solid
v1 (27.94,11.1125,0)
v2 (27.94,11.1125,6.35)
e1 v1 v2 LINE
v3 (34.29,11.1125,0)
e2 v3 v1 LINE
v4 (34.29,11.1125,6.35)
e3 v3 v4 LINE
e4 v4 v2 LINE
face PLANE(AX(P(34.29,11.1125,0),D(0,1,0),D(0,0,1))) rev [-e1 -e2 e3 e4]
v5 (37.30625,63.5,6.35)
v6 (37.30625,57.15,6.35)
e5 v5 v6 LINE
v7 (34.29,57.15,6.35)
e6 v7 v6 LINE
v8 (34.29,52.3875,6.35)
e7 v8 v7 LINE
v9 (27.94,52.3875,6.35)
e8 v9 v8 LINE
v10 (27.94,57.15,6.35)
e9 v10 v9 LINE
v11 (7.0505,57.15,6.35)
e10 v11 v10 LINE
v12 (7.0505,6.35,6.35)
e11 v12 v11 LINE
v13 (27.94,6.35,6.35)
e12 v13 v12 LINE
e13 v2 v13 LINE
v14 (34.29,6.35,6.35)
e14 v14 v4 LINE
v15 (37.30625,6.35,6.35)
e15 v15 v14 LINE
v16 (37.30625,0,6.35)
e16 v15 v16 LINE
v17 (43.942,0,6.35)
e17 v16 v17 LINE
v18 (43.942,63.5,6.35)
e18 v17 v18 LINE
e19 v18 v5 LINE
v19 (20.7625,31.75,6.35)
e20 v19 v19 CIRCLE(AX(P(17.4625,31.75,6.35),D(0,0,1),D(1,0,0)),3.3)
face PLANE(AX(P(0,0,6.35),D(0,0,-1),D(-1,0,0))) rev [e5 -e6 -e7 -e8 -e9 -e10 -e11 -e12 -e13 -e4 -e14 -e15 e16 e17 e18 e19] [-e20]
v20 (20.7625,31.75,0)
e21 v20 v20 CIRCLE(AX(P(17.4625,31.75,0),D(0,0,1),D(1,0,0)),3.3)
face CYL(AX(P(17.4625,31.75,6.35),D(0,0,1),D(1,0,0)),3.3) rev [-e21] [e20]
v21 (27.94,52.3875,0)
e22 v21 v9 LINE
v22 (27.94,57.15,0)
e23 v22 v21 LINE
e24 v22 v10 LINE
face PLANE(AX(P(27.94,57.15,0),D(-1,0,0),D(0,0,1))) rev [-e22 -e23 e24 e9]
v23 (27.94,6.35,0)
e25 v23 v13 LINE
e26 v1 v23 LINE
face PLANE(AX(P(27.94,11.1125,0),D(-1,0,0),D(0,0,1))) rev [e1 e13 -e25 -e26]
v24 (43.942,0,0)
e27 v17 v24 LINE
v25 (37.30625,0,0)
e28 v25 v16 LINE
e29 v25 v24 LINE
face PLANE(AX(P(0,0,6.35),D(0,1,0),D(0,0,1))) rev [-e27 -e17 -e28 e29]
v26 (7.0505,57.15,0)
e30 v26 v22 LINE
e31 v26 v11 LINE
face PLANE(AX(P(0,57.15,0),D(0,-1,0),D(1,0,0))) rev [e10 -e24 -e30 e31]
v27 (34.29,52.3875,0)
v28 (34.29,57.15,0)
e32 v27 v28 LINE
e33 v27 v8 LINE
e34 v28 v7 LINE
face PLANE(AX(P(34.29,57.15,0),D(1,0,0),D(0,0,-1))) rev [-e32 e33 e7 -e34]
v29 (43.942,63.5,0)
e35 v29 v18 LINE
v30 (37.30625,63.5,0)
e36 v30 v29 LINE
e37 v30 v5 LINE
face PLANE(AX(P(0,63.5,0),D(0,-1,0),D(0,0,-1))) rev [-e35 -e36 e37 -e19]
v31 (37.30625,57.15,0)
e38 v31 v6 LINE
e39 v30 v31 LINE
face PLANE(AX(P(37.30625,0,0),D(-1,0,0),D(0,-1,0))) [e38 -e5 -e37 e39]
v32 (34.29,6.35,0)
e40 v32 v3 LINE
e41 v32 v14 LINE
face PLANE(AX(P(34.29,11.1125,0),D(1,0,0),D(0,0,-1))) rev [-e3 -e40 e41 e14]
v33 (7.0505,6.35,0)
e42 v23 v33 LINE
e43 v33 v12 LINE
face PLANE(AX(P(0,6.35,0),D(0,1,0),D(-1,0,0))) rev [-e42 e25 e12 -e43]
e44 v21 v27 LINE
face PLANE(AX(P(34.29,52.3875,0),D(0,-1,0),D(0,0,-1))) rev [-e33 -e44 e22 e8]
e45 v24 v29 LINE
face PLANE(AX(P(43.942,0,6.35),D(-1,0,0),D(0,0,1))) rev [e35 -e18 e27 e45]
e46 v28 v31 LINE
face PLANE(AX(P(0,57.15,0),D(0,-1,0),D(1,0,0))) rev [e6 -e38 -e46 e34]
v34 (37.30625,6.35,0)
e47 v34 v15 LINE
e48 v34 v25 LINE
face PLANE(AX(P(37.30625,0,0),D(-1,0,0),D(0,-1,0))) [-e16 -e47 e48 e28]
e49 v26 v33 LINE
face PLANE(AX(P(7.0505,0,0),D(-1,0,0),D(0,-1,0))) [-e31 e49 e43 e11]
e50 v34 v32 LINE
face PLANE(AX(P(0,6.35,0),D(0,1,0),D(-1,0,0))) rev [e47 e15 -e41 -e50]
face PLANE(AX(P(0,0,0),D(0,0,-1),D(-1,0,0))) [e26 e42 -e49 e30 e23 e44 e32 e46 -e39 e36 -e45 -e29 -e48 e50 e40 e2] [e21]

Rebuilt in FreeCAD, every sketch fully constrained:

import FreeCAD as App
import Part
import Sketcher

V = App.Vector
Q = App.Units.Quantity

doc = App.newDocument("Part")
body = doc.addObject("PartDesign::Body", "Body")

sketch1 = body.newObject("Sketcher::SketchObject", "Sketch")
sketch1.AttachmentSupport = (doc.getObject("XY_Plane"), [""])
sketch1.MapMode = "FlatFace"
sketch1.addGeometry([
    Part.LineSegment(V(0, 127, 0), V(0, 0, 0)),
    Part.LineSegment(V(0, 0, 0), V(44, 0, 0)),
    Part.LineSegment(V(44, 0, 0), V(44, 127, 0)),
    Part.LineSegment(V(44, 127, 0), V(0, 127, 0)),
], False)
sketch1.addConstraint([
    Sketcher.Constraint("Coincident", 0, 2, 1, 1),
    Sketcher.Constraint("Coincident", 1, 2, 2, 1),
    Sketcher.Constraint("Coincident", 2, 2, 3, 1),
    Sketcher.Constraint("Coincident", 3, 2, 0, 1),
    Sketcher.Constraint("Vertical", 0),
    Sketcher.Constraint("Horizontal", 1),
    Sketcher.Constraint("Vertical", 2),
    Sketcher.Constraint("Horizontal", 3),
    Sketcher.Constraint("Coincident", 0, 2, -1, 1),
    Sketcher.Constraint("DistanceY", 0, 2, 0, 1, Q("5 in")),
    Sketcher.Constraint("DistanceX", 1, 1, 1, 2, Q("1.73 in")),
])
pad1 = body.newObject("PartDesign::Pad", "Pad")
pad1.Profile = sketch1
pad1.Length = Q("0.25 in")

sketch2 = body.newObject("Sketcher::SketchObject", "Sketch001")
sketch2.AttachmentSupport = (doc.getObject("XY_Plane"), [""])
sketch2.MapMode = "FlatFace"
sketch2.AttachmentOffset = App.Placement(V(0, 0, 0.25 * 25.4), App.Rotation())
sketch2.addGeometry([
    Part.Circle(V(17.5, 31.8, 0), V(0, 0, 1), 3.3),
    Part.Circle(V(17.5, 95.2, 0), V(0, 0, 1), 3.3),
], False)
sketch2.addConstraint([
    Sketcher.Constraint("Equal", 0, 1),
    Sketcher.Constraint("Vertical", 0, 3, 1, 3),
    Sketcher.Constraint("DistanceY", 0, 3, 1, 3, Q("2.5 in")),
    Sketcher.Constraint("Diameter", 0, Q("6.6 mm")),
    Sketcher.Constraint("DistanceY", -1, 1, 0, 3, Q("1.25 in")),
    Sketcher.Constraint("DistanceX", -1, 1, 0, 3, Q("0.6875 in")),
])
doc.recompute()
hole = body.newObject("PartDesign::Hole", "Hole")
hole.Profile = sketch2
hole.ThreadType = "None"
hole.Diameter = 6.6
hole.DepthType = "ThroughAll"

sketch3 = body.newObject("Sketcher::SketchObject", "Sketch002")
sketch3.AttachmentSupport = (doc.getObject("XY_Plane"), [""])
sketch3.MapMode = "FlatFace"
sketch3.AttachmentOffset = App.Placement(V(0, 0, 0.25 * 25.4), App.Rotation())
sketch3.addGeometry([
    Part.LineSegment(V(0, 127, 0), V(0, 0, 0)),
    Part.LineSegment(V(0, 0, 0), V(7, 0, 0)),
    Part.LineSegment(V(7, 0, 0), V(7, 127, 0)),
    Part.LineSegment(V(7, 127, 0), V(0, 127, 0)),
], False)
sketch3.addConstraint([
    Sketcher.Constraint("Coincident", 0, 2, 1, 1),
    Sketcher.Constraint("Coincident", 1, 2, 2, 1),
    Sketcher.Constraint("Coincident", 2, 2, 3, 1),
    Sketcher.Constraint("Coincident", 3, 2, 0, 1),
    Sketcher.Constraint("Vertical", 0),
    Sketcher.Constraint("Horizontal", 1),
    Sketcher.Constraint("Vertical", 2),
    Sketcher.Constraint("Horizontal", 3),
    Sketcher.Constraint("Coincident", 0, 2, -1, 1),
    Sketcher.Constraint("DistanceY", 0, 2, 0, 1, Q("5 in")),
    Sketcher.Constraint("DistanceX", 1, 1, 1, 2, Q("7.0505 mm")),
])
pocket1 = body.newObject("PartDesign::Pocket", "Pocket")
pocket1.Profile = sketch3
pocket1.Type = "ThroughAll"
pocket1.Midplane = True

sketch4 = body.newObject("Sketcher::SketchObject", "Sketch003")
sketch4.AttachmentSupport = (doc.getObject("XY_Plane"), [""])
sketch4.MapMode = "FlatFace"
sketch4.AttachmentOffset = App.Placement(V(0, 0, 0.25 * 25.4), App.Rotation())
sketch4.addGeometry([
    Part.LineSegment(V(7, 121, 0), V(37, 121, 0)),
    Part.LineSegment(V(37, 121, 0), V(37, 127, 0)),
    Part.LineSegment(V(37, 127, 0), V(7, 127, 0)),
    Part.LineSegment(V(7, 127, 0), V(7, 121, 0)),
    Part.LineSegment(V(37, 67, 0), V(7, 67, 0)),
    Part.LineSegment(V(7, 67, 0), V(7, 57, 0)),
    Part.LineSegment(V(7, 57, 0), V(37, 57, 0)),
    Part.LineSegment(V(37, 57, 0), V(37, 67, 0)),
    Part.LineSegment(V(37, 0, 0), V(37, 6, 0)),
    Part.LineSegment(V(37, 6, 0), V(7, 6, 0)),
    Part.LineSegment(V(7, 6, 0), V(7, 0, 0)),
    Part.LineSegment(V(7, 0, 0), V(37, 0, 0)),
], False)
sketch4.addConstraint([
    Sketcher.Constraint("Coincident", 0, 2, 1, 1),
    Sketcher.Constraint("Coincident", 1, 2, 2, 1),
    Sketcher.Constraint("Coincident", 2, 2, 3, 1),
    Sketcher.Constraint("Coincident", 3, 2, 0, 1),
    Sketcher.Constraint("Coincident", 4, 2, 5, 1),
    Sketcher.Constraint("Coincident", 5, 2, 6, 1),
    Sketcher.Constraint("Coincident", 6, 2, 7, 1),
    Sketcher.Constraint("Coincident", 7, 2, 4, 1),
    Sketcher.Constraint("Coincident", 8, 2, 9, 1),
    Sketcher.Constraint("Coincident", 9, 2, 10, 1),
    Sketcher.Constraint("Coincident", 10, 2, 11, 1),
    Sketcher.Constraint("Coincident", 11, 2, 8, 1),
    Sketcher.Constraint("Horizontal", 0),
    Sketcher.Constraint("Vertical", 1),
    Sketcher.Constraint("Horizontal", 2),
    Sketcher.Constraint("Vertical", 3),
    Sketcher.Constraint("Horizontal", 4),
    Sketcher.Constraint("Vertical", 5),
    Sketcher.Constraint("Horizontal", 6),
    Sketcher.Constraint("Vertical", 7),
    Sketcher.Constraint("Vertical", 8),
    Sketcher.Constraint("Horizontal", 9),
    Sketcher.Constraint("Vertical", 10),
    Sketcher.Constraint("Horizontal", 11),
    Sketcher.Constraint("PointOnObject", 10, 2, -1),
    Sketcher.Constraint("Vertical", 3, 2, 4, 2),
    Sketcher.Constraint("Vertical", 1, 2, 6, 2),
    Sketcher.Constraint("Vertical", 7, 2, 8, 2),
    Sketcher.Constraint("Vertical", 5, 2, 9, 2),
    Sketcher.Constraint("Equal", 3, 8),
    Sketcher.Constraint("DistanceY", -1, 1, 1, 2, Q("5 in")),
    Sketcher.Constraint("DistanceY", 8, 2, 6, 2, Q("2 in")),
    Sketcher.Constraint("DistanceY", 1, 1, 1, 2, Q("0.25 in")),
    Sketcher.Constraint("DistanceY", 5, 2, 5, 1, Q("0.375 in")),
    Sketcher.Constraint("DistanceX", -1, 1, 0, 2, Q("1.46875 in")),
    Sketcher.Constraint("DistanceX", 0, 1, 0, 2, Q("30.25575 mm")),
])
pocket2 = body.newObject("PartDesign::Pocket", "Pocket001")
pocket2.Profile = sketch4
pocket2.Type = "ThroughAll"

sketch5 = body.newObject("Sketcher::SketchObject", "Sketch004")
sketch5.AttachmentSupport = (doc.getObject("XY_Plane"), [""])
sketch5.MapMode = "FlatFace"
sketch5.AttachmentOffset = App.Placement(V(0, 0, 0.25 * 25.4), App.Rotation())
sketch5.addGeometry([
    Part.LineSegment(V(27.9, 120.7, 0), V(27.9, 115.9, 0)),
    Part.LineSegment(V(27.9, 115.9, 0), V(34.3, 115.9, 0)),
    Part.LineSegment(V(34.3, 115.9, 0), V(34.3, 120.7, 0)),
    Part.LineSegment(V(34.3, 120.7, 0), V(27.9, 120.7, 0)),
    Part.LineSegment(V(27.9, 71.4, 0), V(27.9, 66.7, 0)),
    Part.LineSegment(V(27.9, 66.7, 0), V(34.3, 66.7, 0)),
    Part.LineSegment(V(34.3, 66.7, 0), V(34.3, 71.4, 0)),
    Part.LineSegment(V(34.3, 71.4, 0), V(27.9, 71.4, 0)),
    Part.LineSegment(V(27.9, 57.1, 0), V(27.9, 52.4, 0)),
    Part.LineSegment(V(27.9, 52.4, 0), V(34.3, 52.4, 0)),
    Part.LineSegment(V(34.3, 52.4, 0), V(34.3, 57.1, 0)),
    Part.LineSegment(V(34.3, 57.1, 0), V(27.9, 57.1, 0)),
    Part.LineSegment(V(27.9, 11.1, 0), V(27.9, 6.3, 0)),
    Part.LineSegment(V(27.9, 6.3, 0), V(34.3, 6.3, 0)),
    Part.LineSegment(V(34.3, 6.3, 0), V(34.3, 11.1, 0)),
    Part.LineSegment(V(34.3, 11.1, 0), V(27.9, 11.1, 0)),
], False)
sketch5.addConstraint([
    Sketcher.Constraint("Coincident", 0, 2, 1, 1),
    Sketcher.Constraint("Coincident", 1, 2, 2, 1),
    Sketcher.Constraint("Coincident", 2, 2, 3, 1),
    Sketcher.Constraint("Coincident", 3, 2, 0, 1),
    Sketcher.Constraint("Coincident", 4, 2, 5, 1),
    Sketcher.Constraint("Coincident", 5, 2, 6, 1),
    Sketcher.Constraint("Coincident", 6, 2, 7, 1),
    Sketcher.Constraint("Coincident", 7, 2, 4, 1),
    Sketcher.Constraint("Coincident", 8, 2, 9, 1),
    Sketcher.Constraint("Coincident", 9, 2, 10, 1),
    Sketcher.Constraint("Coincident", 10, 2, 11, 1),
    Sketcher.Constraint("Coincident", 11, 2, 8, 1),
    Sketcher.Constraint("Coincident", 12, 2, 13, 1),
    Sketcher.Constraint("Coincident", 13, 2, 14, 1),
    Sketcher.Constraint("Coincident", 14, 2, 15, 1),
    Sketcher.Constraint("Coincident", 15, 2, 12, 1),
    Sketcher.Constraint("Vertical", 0),
    Sketcher.Constraint("Horizontal", 1),
    Sketcher.Constraint("Vertical", 2),
    Sketcher.Constraint("Horizontal", 3),
    Sketcher.Constraint("Vertical", 4),
    Sketcher.Constraint("Horizontal", 5),
    Sketcher.Constraint("Vertical", 6),
    Sketcher.Constraint("Horizontal", 7),
    Sketcher.Constraint("Vertical", 8),
    Sketcher.Constraint("Horizontal", 9),
    Sketcher.Constraint("Vertical", 10),
    Sketcher.Constraint("Horizontal", 11),
    Sketcher.Constraint("Vertical", 12),
    Sketcher.Constraint("Horizontal", 13),
    Sketcher.Constraint("Vertical", 14),
    Sketcher.Constraint("Horizontal", 15),
    Sketcher.Constraint("Vertical", 3, 2, 4, 2),
    Sketcher.Constraint("Vertical", 2, 2, 5, 2),
    Sketcher.Constraint("Vertical", 7, 2, 8, 2),
    Sketcher.Constraint("Vertical", 6, 2, 9, 2),
    Sketcher.Constraint("Vertical", 11, 2, 12, 2),
    Sketcher.Constraint("Vertical", 10, 2, 13, 2),
    Sketcher.Constraint("Equal", 2, 4),
    Sketcher.Constraint("Equal", 6, 8),
    Sketcher.Constraint("Equal", 10, 12),
    Sketcher.Constraint("DistanceY", 12, 2, 11, 2, Q("2 in")),
    Sketcher.Constraint("DistanceX", 1, 1, 1, 2, Q("0.25 in")),
    Sketcher.Constraint("DistanceX", -1, 1, 0, 2, Q("1.1 in")),
    Sketcher.Constraint("DistanceY", 8, 2, 0, 2, Q("2.5 in")),
    Sketcher.Constraint("DistanceY", 0, 2, 0, 1, Q("0.1875 in")),
    Sketcher.Constraint("DistanceY", -1, 1, 2, 2, Q("4.75 in")),
    Sketcher.Constraint("DistanceY", 6, 2, 1, 2, Q("1.75 in")),
])
pocket3 = body.newObject("PartDesign::Pocket", "Pocket002")
pocket3.Profile = sketch5
pocket3.Type = "ThroughAll"

sketch6 = body.newObject("Sketcher::SketchObject", "Sketch005")
sketch6.AttachmentSupport = (doc.getObject("XY_Plane"), [""])
sketch6.MapMode = "FlatFace"
sketch6.AttachmentOffset = App.Placement(V(0, 0, 0.25 * 25.4), App.Rotation())
sketch6.addGeometry([
    Part.LineSegment(V(37.3, 66.7, 0), V(37.3, 63.5, 0)),
    Part.LineSegment(V(37.3, 63.5, 0), V(43.9, 63.5, 0)),
    Part.LineSegment(V(43.9, 63.5, 0), V(43.9, 127, 0)),
    Part.LineSegment(V(43.9, 127, 0), V(37.3, 127, 0)),
    Part.LineSegment(V(37.3, 127, 0), V(37.3, 120.7, 0)),
    Part.LineSegment(V(37.3, 120.7, 0), V(34.3, 120.7, 0)),
    Part.LineSegment(V(34.3, 120.7, 0), V(34.3, 115.9, 0)),
    Part.LineSegment(V(34.3, 115.9, 0), V(27.9, 115.9, 0)),
    Part.LineSegment(V(27.9, 115.9, 0), V(27.9, 120.7, 0)),
    Part.LineSegment(V(27.9, 120.7, 0), V(7.1, 120.7, 0)),
    Part.LineSegment(V(7.1, 120.7, 0), V(7.1, 66.7, 0)),
    Part.LineSegment(V(7.1, 66.7, 0), V(27.9, 66.7, 0)),
    Part.LineSegment(V(27.9, 66.7, 0), V(27.9, 71.4, 0)),
    Part.LineSegment(V(27.9, 71.4, 0), V(34.3, 71.4, 0)),
    Part.LineSegment(V(34.3, 71.4, 0), V(34.3, 66.7, 0)),
    Part.LineSegment(V(34.3, 66.7, 0), V(37.3, 66.7, 0)),
    Part.Circle(V(17.5, 95.2, 0), V(0, 0, 1), 3.3),
], False)
sketch6.addConstraint([
    Sketcher.Constraint("Coincident", 0, 2, 1, 1),
    Sketcher.Constraint("Coincident", 1, 2, 2, 1),
    Sketcher.Constraint("Coincident", 2, 2, 3, 1),
    Sketcher.Constraint("Coincident", 3, 2, 4, 1),
    Sketcher.Constraint("Coincident", 4, 2, 5, 1),
    Sketcher.Constraint("Coincident", 5, 2, 6, 1),
    Sketcher.Constraint("Coincident", 6, 2, 7, 1),
    Sketcher.Constraint("Coincident", 7, 2, 8, 1),
    Sketcher.Constraint("Coincident", 8, 2, 9, 1),
    Sketcher.Constraint("Coincident", 9, 2, 10, 1),
    Sketcher.Constraint("Coincident", 10, 2, 11, 1),
    Sketcher.Constraint("Coincident", 11, 2, 12, 1),
    Sketcher.Constraint("Coincident", 12, 2, 13, 1),
    Sketcher.Constraint("Coincident", 13, 2, 14, 1),
    Sketcher.Constraint("Coincident", 14, 2, 15, 1),
    Sketcher.Constraint("Coincident", 15, 2, 0, 1),
    Sketcher.Constraint("Vertical", 0),
    Sketcher.Constraint("Horizontal", 1),
    Sketcher.Constraint("Vertical", 2),
    Sketcher.Constraint("Horizontal", 3),
    Sketcher.Constraint("Vertical", 4),
    Sketcher.Constraint("Horizontal", 5),
    Sketcher.Constraint("Vertical", 6),
    Sketcher.Constraint("Horizontal", 7),
    Sketcher.Constraint("Vertical", 8),
    Sketcher.Constraint("Horizontal", 9),
    Sketcher.Constraint("Vertical", 10),
    Sketcher.Constraint("Horizontal", 11),
    Sketcher.Constraint("Vertical", 12),
    Sketcher.Constraint("Horizontal", 13),
    Sketcher.Constraint("Vertical", 14),
    Sketcher.Constraint("Horizontal", 15),
    Sketcher.Constraint("Horizontal", 5, 2, 8, 2),
    Sketcher.Constraint("Horizontal", 11, 2, 14, 2),
    Sketcher.Constraint("Vertical", 0, 2, 3, 2),
    Sketcher.Constraint("Vertical", 8, 2, 11, 2),
    Sketcher.Constraint("Vertical", 6, 2, 13, 2),
    Sketcher.Constraint("Equal", 13, 4),
    Sketcher.Constraint("Equal", 8, 12),
    Sketcher.Constraint("DistanceY", 2, 1, 2, 2, Q("2.5 in")),
    Sketcher.Constraint("DistanceY", -1, 1, 2, 2, Q("5 in")),
    Sketcher.Constraint("DistanceY", 16, 3, 4, 2, Q("1 in")),
    Sketcher.Constraint("DistanceX", 7, 2, 7, 1, Q("0.25 in")),
    Sketcher.Constraint("DistanceX", -1, 1, 7, 2, Q("1.1 in")),
    Sketcher.Constraint("Diameter", 16, Q("6.6 mm")),
    Sketcher.Constraint("DistanceY", 0, 2, 0, 1, Q("0.125 in")),
    Sketcher.Constraint("DistanceY", 6, 2, 6, 1, Q("0.1875 in")),
    Sketcher.Constraint("DistanceX", -1, 1, 1, 2, Q("1.73 in")),
    Sketcher.Constraint("DistanceX", -1, 1, 16, 3, Q("0.6875 in")),
    Sketcher.Constraint("DistanceX", -1, 1, 0, 2, Q("1.46875 in")),
    Sketcher.Constraint("DistanceX", 9, 2, 9, 1, Q("20.8895 mm")),
])
pocket4 = body.newObject("PartDesign::Pocket", "Pocket003")
pocket4.Profile = sketch6
pocket4.Type = "ThroughAll"
pocket4.Midplane = True

doc.recompute()
